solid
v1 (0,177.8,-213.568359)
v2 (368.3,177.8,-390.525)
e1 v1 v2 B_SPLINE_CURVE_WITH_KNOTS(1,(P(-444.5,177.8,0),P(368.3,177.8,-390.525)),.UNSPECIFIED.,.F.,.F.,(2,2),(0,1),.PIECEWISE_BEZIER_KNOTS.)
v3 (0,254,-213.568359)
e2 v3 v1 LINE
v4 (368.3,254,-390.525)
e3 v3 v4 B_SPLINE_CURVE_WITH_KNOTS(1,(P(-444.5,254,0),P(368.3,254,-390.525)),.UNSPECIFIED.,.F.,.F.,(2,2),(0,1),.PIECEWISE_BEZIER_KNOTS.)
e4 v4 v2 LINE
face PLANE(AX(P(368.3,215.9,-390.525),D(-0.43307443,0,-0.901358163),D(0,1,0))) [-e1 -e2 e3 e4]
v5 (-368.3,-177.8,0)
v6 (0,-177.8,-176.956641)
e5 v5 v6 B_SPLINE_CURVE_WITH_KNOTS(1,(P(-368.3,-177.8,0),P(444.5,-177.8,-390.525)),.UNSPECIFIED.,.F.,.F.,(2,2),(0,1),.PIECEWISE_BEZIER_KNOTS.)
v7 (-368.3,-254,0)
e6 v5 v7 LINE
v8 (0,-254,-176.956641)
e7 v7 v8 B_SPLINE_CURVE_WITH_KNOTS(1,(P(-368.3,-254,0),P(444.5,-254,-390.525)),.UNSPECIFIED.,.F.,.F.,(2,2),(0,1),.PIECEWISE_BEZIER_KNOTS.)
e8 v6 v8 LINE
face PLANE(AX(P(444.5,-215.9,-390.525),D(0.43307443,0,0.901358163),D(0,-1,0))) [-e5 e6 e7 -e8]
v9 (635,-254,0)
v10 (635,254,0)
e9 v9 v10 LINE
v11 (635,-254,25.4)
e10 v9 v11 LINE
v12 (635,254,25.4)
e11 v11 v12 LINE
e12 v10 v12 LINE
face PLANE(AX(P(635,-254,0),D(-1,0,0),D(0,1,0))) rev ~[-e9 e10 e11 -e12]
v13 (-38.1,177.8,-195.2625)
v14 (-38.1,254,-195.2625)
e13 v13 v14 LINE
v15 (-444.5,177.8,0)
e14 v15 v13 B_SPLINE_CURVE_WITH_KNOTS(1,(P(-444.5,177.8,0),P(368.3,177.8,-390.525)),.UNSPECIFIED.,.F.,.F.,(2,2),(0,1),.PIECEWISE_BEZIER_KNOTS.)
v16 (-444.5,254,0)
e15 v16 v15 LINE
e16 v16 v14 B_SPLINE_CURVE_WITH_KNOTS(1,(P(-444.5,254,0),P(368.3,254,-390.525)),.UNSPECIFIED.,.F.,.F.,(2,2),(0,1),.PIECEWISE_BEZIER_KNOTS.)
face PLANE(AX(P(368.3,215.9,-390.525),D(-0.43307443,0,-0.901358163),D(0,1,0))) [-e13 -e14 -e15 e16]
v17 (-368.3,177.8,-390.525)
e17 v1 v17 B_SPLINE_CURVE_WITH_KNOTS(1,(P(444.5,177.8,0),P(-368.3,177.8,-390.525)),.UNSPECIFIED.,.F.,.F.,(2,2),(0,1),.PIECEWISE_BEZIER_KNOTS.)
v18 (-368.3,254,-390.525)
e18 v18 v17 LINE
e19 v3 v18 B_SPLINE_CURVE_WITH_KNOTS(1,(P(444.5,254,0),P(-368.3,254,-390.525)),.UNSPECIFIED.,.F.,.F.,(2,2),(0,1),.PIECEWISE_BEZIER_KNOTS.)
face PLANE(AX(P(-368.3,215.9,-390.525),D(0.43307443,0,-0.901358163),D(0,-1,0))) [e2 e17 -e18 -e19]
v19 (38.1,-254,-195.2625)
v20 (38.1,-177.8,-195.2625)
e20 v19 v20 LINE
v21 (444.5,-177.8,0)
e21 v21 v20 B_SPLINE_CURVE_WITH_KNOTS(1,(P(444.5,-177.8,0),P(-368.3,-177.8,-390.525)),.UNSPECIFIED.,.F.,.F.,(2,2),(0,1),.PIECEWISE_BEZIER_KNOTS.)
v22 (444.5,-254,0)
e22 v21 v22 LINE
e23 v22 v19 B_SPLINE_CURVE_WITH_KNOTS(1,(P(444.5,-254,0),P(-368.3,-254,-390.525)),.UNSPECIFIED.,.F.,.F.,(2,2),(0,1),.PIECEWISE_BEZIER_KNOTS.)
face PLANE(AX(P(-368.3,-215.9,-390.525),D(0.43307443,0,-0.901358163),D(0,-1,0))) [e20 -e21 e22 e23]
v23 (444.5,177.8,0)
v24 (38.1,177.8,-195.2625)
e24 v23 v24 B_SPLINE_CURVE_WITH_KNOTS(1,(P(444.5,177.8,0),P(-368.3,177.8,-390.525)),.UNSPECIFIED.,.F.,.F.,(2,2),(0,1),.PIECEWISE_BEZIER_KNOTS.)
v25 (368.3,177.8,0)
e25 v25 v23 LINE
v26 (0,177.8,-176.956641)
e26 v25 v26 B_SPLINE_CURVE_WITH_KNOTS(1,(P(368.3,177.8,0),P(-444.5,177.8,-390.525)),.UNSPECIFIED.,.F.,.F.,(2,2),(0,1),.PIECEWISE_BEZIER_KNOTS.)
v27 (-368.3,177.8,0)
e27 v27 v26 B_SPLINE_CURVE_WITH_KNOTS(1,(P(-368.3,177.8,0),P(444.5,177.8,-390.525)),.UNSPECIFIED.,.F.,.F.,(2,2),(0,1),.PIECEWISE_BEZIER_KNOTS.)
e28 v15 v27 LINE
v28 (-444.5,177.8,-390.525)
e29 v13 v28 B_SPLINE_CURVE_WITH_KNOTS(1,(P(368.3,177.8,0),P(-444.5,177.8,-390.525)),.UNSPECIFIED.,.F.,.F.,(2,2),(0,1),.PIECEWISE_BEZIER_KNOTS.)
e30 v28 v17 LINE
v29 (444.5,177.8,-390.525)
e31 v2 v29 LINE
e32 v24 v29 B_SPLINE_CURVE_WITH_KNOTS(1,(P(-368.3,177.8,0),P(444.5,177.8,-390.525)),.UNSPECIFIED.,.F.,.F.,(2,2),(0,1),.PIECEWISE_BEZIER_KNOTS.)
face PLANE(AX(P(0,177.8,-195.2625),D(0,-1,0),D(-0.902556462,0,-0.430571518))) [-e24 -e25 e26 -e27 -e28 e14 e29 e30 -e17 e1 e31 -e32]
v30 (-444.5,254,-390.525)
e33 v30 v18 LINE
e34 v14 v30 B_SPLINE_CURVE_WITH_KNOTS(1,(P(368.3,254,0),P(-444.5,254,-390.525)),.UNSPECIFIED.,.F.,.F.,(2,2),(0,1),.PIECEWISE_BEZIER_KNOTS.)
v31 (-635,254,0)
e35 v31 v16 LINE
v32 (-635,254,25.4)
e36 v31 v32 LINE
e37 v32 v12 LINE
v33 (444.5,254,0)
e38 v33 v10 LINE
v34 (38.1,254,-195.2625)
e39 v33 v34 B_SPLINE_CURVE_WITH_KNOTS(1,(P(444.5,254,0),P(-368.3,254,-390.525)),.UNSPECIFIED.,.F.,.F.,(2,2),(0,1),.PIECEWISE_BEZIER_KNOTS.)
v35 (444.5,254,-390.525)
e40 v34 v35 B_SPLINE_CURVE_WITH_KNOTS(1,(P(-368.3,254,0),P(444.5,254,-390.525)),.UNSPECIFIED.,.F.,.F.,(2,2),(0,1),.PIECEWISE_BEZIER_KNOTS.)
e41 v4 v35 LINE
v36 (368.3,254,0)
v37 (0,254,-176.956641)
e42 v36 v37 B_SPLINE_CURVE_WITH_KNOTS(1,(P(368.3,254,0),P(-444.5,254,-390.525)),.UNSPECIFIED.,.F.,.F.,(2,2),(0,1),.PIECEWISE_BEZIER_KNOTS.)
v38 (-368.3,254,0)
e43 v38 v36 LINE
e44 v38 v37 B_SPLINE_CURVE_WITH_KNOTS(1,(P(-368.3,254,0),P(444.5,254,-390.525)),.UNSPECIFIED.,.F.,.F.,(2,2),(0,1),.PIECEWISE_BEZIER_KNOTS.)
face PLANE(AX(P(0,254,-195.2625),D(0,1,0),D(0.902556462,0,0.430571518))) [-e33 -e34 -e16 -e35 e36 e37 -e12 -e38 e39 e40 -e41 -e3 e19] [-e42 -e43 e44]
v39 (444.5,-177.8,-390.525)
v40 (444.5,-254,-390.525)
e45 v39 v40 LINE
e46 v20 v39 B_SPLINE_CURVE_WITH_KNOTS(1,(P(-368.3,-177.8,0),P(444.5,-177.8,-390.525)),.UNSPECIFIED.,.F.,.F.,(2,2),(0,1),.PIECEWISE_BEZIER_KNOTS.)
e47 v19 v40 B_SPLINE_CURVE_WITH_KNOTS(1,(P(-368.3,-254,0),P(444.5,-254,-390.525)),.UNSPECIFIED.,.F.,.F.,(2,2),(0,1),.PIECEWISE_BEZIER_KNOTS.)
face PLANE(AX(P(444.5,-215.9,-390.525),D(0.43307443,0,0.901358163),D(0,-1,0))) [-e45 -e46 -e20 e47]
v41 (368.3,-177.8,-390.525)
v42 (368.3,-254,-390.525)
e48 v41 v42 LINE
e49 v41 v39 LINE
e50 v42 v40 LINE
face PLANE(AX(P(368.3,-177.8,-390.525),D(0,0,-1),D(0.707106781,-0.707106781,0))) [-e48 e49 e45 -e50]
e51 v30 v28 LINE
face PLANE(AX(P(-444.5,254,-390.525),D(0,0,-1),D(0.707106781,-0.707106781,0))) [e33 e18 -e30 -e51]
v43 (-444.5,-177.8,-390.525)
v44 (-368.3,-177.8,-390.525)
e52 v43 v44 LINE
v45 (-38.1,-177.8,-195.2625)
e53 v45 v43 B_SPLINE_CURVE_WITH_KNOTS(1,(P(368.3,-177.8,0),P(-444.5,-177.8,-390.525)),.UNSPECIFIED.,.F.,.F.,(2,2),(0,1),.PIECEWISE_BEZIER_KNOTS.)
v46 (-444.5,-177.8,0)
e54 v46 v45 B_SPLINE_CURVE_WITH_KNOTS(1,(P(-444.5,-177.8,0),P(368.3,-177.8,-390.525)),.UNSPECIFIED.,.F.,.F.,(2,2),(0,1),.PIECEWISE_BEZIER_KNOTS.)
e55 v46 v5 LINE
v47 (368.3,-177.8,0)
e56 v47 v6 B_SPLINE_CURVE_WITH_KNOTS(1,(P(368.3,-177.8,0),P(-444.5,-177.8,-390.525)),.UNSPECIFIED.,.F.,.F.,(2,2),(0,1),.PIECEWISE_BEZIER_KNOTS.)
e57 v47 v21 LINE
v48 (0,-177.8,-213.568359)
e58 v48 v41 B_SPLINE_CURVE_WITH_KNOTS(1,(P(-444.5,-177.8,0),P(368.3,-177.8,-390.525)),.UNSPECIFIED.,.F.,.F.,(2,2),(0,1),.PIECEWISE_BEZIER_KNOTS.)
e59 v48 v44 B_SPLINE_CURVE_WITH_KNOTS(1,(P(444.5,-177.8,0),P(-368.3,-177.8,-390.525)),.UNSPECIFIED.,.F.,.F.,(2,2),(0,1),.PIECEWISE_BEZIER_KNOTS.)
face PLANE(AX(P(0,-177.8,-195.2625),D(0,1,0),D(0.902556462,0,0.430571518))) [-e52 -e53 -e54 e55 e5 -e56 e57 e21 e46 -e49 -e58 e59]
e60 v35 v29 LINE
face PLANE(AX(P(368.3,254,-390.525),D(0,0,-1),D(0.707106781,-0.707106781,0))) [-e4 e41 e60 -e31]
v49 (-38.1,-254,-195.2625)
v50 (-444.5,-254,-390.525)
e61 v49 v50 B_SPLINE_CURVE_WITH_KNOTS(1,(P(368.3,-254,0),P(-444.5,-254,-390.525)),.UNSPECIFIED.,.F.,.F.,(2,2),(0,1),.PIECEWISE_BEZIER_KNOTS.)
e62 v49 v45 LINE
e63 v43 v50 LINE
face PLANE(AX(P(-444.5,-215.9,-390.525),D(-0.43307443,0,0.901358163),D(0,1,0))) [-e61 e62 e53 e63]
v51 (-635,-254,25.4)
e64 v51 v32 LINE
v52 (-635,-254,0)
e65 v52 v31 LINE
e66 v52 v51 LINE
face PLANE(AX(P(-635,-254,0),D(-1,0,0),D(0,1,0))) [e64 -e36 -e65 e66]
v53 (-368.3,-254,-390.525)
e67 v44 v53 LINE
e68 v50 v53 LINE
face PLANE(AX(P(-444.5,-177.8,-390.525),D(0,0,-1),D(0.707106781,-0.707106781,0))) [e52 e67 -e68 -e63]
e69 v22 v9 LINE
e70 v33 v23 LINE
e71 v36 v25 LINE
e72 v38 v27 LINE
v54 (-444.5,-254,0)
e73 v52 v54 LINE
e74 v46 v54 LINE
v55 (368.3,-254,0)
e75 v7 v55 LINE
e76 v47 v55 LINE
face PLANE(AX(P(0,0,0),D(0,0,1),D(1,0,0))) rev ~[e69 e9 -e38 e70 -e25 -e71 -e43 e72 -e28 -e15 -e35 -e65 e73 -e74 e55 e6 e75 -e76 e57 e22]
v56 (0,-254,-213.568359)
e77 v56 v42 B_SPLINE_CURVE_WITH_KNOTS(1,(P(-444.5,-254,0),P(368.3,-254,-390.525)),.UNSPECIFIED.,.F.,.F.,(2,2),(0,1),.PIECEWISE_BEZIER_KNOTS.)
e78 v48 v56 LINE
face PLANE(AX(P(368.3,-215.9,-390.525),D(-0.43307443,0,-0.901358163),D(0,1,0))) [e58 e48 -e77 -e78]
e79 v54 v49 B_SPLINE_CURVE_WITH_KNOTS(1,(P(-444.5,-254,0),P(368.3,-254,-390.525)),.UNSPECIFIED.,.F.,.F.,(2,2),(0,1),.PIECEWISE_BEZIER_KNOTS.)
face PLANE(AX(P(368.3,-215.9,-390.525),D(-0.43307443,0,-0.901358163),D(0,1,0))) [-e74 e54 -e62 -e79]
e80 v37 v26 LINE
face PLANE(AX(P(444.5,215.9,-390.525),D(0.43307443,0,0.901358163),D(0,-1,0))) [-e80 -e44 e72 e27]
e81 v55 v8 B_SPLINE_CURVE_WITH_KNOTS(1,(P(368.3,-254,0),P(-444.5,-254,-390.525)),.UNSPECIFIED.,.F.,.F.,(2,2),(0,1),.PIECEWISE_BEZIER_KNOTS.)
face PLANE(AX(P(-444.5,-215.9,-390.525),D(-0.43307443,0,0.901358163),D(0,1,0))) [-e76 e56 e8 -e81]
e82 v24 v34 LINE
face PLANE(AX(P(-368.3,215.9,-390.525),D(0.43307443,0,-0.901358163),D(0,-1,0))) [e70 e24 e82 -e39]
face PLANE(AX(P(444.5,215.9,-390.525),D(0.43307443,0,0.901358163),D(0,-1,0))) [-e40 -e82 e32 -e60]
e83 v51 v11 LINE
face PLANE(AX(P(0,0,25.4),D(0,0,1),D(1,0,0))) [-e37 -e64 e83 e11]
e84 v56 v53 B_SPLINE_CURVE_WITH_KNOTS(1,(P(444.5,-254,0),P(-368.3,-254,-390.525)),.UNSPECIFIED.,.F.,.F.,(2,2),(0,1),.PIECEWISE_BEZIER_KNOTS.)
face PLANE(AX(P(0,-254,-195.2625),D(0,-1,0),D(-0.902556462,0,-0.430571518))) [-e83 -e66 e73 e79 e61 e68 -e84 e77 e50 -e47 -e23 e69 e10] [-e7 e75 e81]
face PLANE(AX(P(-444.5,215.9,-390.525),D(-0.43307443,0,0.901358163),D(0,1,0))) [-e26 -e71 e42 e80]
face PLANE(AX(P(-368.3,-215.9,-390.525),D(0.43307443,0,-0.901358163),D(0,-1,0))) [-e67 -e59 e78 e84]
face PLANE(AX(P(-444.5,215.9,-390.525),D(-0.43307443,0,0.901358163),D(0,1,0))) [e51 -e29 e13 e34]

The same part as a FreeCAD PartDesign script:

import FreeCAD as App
import Part
import Sketcher

V = App.Vector
Q = App.Units.Quantity

doc = App.newDocument("Part")
body = doc.addObject("PartDesign::Body", "Body")

sketch1 = body.newObject("Sketcher::SketchObject", "Sketch")
sketch1.AttachmentSupport = (doc.getObject("XY_Plane"), [""])
sketch1.MapMode = "FlatFace"
sketch1.addGeometry(Part.LineSegment(V(-635, 254, 0), V(-635, -254, 0)), False)
sketch1.addGeometry(Part.LineSegment(V(-635, -254, 0), V(635, -254, 0)), False)
sketch1.addGeometry(Part.LineSegment(V(635, -254, 0), V(635, 254, 0)), False)
sketch1.addGeometry(Part.LineSegment(V(635, 254, 0), V(-635, 254, 0)), False)
sketch1.addConstraint(Sketcher.Constraint("Coincident", 0, 2, 1, 1))
sketch1.addConstraint(Sketcher.Constraint("Coincident", 1, 2, 2, 1))
sketch1.addConstraint(Sketcher.Constraint("Coincident", 2, 2, 3, 1))
sketch1.addConstraint(Sketcher.Constraint("Coincident", 3, 2, 0, 1))
sketch1.addConstraint(Sketcher.Constraint("Vertical", 0))
sketch1.addConstraint(Sketcher.Constraint("Horizontal", 1))
sketch1.addConstraint(Sketcher.Constraint("Vertical", 2))
sketch1.addConstraint(Sketcher.Constraint("Horizontal", 3))
sketch1.addConstraint(Sketcher.Constraint("Symmetric", 0, 2, 2, 2, -1, 1))
sketch1.addConstraint(Sketcher.Constraint("DistanceX", 1, 1, 1, 2, Q("50 in")))
sketch1.addConstraint(Sketcher.Constraint("DistanceY", 0, 2, 0, 1, Q("20 in")))
pad1 = body.newObject("PartDesign::Pad", "Pad")
pad1.Profile = sketch1
pad1.Length = Q("1 in")

sketch2 = body.newObject("Sketcher::SketchObject", "Sketch001")
sketch2.AttachmentSupport = (doc.getObject("XY_Plane"), [""])
sketch2.MapMode = "FlatFace"
sketch2.addGeometry(Part.LineSegment(V(-444, -254, 0), V(-444, -178, 0)), False)
sketch2.addGeometry(Part.LineSegment(V(-444, -178, 0), V(-368, -178, 0)), False)
sketch2.addGeometry(Part.LineSegment(V(-368, -178, 0), V(-368, -254, 0)), False)
sketch2.addGeometry(Part.LineSegment(V(-368, -254, 0), V(-444, -254, 0)), False)
sketch2.addConstraint(Sketcher.Constraint("Coincident", 0, 2, 1, 1))
sketch2.addConstraint(Sketcher.Constraint("Coincident", 1, 2, 2, 1))
sketch2.addConstraint(Sketcher.Constraint("Coincident", 2, 2, 3, 1))
sketch2.addConstraint(Sketcher.Constraint("Coincident", 3, 2, 0, 1))
sketch2.addConstraint(Sketcher.Constraint("Vertical", 0))
sketch2.addConstraint(Sketcher.Constraint("Horizontal", 1))
sketch2.addConstraint(Sketcher.Constraint("Vertical", 2))
sketch2.addConstraint(Sketcher.Constraint("Horizontal", 3))
sketch2.addConstraint(Sketcher.Constraint("Equal", 3, 0))
sketch2.addConstraint(Sketcher.Constraint("DistanceX", 1, 1, 1, 2, Q("3 in")))
sketch2.addConstraint(Sketcher.Constraint("DistanceY", 0, 2, -1, 1, Q("7 in")))
sketch2.addConstraint(Sketcher.Constraint("DistanceX", 0, 2, -1, 1, Q("17.5 in")))

sketch3 = body.newObject("Sketcher::SketchObject", "Sketch002")
sketch3.AttachmentSupport = (doc.getObject("XY_Plane"), [""])
sketch3.MapMode = "FlatFace"
sketch3.AttachmentOffset = App.Placement(V(0, 0, -15.375 * 25.4), App.Rotation())
sketch3.addGeometry(Part.LineSegment(V(368, -254, 0), V(368, -178, 0)), False)
sketch3.addGeometry(Part.LineSegment(V(368, -178, 0), V(444, -178, 0)), False)
sketch3.addGeometry(Part.LineSegment(V(444, -178, 0), V(444, -254, 0)), False)
sketch3.addGeometry(Part.LineSegment(V(444, -254, 0), V(368, -254, 0)), False)
sketch3.addConstraint(Sketcher.Constraint("Coincident", 0, 2, 1, 1))
sketch3.addConstraint(Sketcher.Constraint("Coincident", 1, 2, 2, 1))
sketch3.addConstraint(Sketcher.Constraint("Coincident", 2, 2, 3, 1))
sketch3.addConstraint(Sketcher.Constraint("Coincident", 3, 2, 0, 1))
sketch3.addConstraint(Sketcher.Constraint("Vertical", 0))
sketch3.addConstraint(Sketcher.Constraint("Horizontal", 1))
sketch3.addConstraint(Sketcher.Constraint("Vertical", 2))
sketch3.addConstraint(Sketcher.Constraint("Horizontal", 3))
sketch3.addConstraint(Sketcher.Constraint("Equal", 3, 0))
sketch3.addConstraint(Sketcher.Constraint("DistanceX", 1, 1, 1, 2, Q("3 in")))
sketch3.addConstraint(Sketcher.Constraint("DistanceY", 0, 2, -1, 1, Q("7 in")))
sketch3.addConstraint(Sketcher.Constraint("DistanceX", -1, 1, 0, 2, Q("14.5 in")))

additiveloft = body.newObject("PartDesign::AdditiveLoft", "AdditiveLoft")
additiveloft.Profile = sketch2
additiveloft.Sections = [sketch3]

sketch4 = body.newObject("Sketcher::SketchObject", "Sketch003")
sketch4.AttachmentSupport = (doc.getObject("XY_Plane"), [""])
sketch4.MapMode = "FlatFace"
sketch4.addGeometry(Part.LineSegment(V(-444, 178, 0), V(-444, 254, 0)), False)
sketch4.addGeometry(Part.LineSegment(V(-444, 254, 0), V(-368, 254, 0)), False)
sketch4.addGeometry(Part.LineSegment(V(-368, 254, 0), V(-368, 178, 0)), False)
sketch4.addGeometry(Part.LineSegment(V(-368, 178, 0), V(-444, 178, 0)), False)
sketch4.addConstraint(Sketcher.Constraint("Coincident", 0, 2, 1, 1))
sketch4.addConstraint(Sketcher.Constraint("Coincident", 1, 2, 2, 1))
sketch4.addConstraint(Sketcher.Constraint("Coincident", 2, 2, 3, 1))
sketch4.addConstraint(Sketcher.Constraint("Coincident", 3, 2, 0, 1))
sketch4.addConstraint(Sketcher.Constraint("Vertical", 0))
sketch4.addConstraint(Sketcher.Constraint("Horizontal", 1))
sketch4.addConstraint(Sketcher.Constraint("Vertical", 2))
sketch4.addConstraint(Sketcher.Constraint("Horizontal", 3))
sketch4.addConstraint(Sketcher.Constraint("Equal", 3, 0))
sketch4.addConstraint(Sketcher.Constraint("DistanceX", 1, 1, 1, 2, Q("3 in")))
sketch4.addConstraint(Sketcher.Constraint("DistanceY", -1, 1, 0, 2, Q("10 in")))
sketch4.addConstraint(Sketcher.Constraint("DistanceX", 0, 2, -1, 1, Q("17.5 in")))

sketch5 = body.newObject("Sketcher::SketchObject", "Sketch004")
sketch5.AttachmentSupport = (doc.getObject("XY_Plane"), [""])
sketch5.MapMode = "FlatFace"
sketch5.AttachmentOffset = App.Placement(V(0, 0, -15.375 * 25.4), App.Rotation())
sketch5.addGeometry(Part.LineSegment(V(368, 178, 0), V(368, 254, 0)), False)
sketch5.addGeometry(Part.LineSegment(V(368, 254, 0), V(444, 254, 0)), False)
sketch5.addGeometry(Part.LineSegment(V(444, 254, 0), V(444, 178, 0)), False)
sketch5.addGeometry(Part.LineSegment(V(444, 178, 0), V(368, 178, 0)), False)
sketch5.addConstraint(Sketcher.Constraint("Coincident", 0, 2, 1, 1))
sketch5.addConstraint(Sketcher.Constraint("Coincident", 1, 2, 2, 1))
sketch5.addConstraint(Sketcher.Constraint("Coincident", 2, 2, 3, 1))
sketch5.addConstraint(Sketcher.Constraint("Coincident", 3, 2, 0, 1))
sketch5.addConstraint(Sketcher.Constraint("Vertical", 0))
sketch5.addConstraint(Sketcher.Constraint("Horizontal", 1))
sketch5.addConstraint(Sketcher.Constraint("Vertical", 2))
sketch5.addConstraint(Sketcher.Constraint("Horizontal", 3))
sketch5.addConstraint(Sketcher.Constraint("Equal", 3, 0))
sketch5.addConstraint(Sketcher.Constraint("DistanceX", 1, 1, 1, 2, Q("3 in")))
sketch5.addConstraint(Sketcher.Constraint("DistanceY", -1, 1, 0, 2, Q("10 in")))
sketch5.addConstraint(Sketcher.Constraint("DistanceX", -1, 1, 0, 2, Q("14.5 in")))

additiveloft2 = body.newObject("PartDesign::AdditiveLoft", "AdditiveLoft001")
additiveloft2.Profile = sketch4
additiveloft2.Sections = [sketch5]

sketch6 = body.newObject("Sketcher::SketchObject", "Sketch005")
sketch6.AttachmentSupport = (doc.getObject("XY_Plane"), [""])
sketch6.MapMode = "FlatFace"
sketch6.addGeometry(Part.LineSegment(V(368, 178, 0), V(368, 254, 0)), False)
sketch6.addGeometry(Part.LineSegment(V(368, 254, 0), V(444, 254, 0)), False)
sketch6.addGeometry(Part.LineSegment(V(444, 254, 0), V(444, 178, 0)), False)
sketch6.addGeometry(Part.LineSegment(V(444, 178, 0), V(368, 178, 0)), False)
sketch6.addConstraint(Sketcher.Constraint("Coincident", 0, 2, 1, 1))
sketch6.addConstraint(Sketcher.Constraint("Coincident", 1, 2, 2, 1))
sketch6.addConstraint(Sketcher.Constraint("Coincident", 2, 2, 3, 1))
sketch6.addConstraint(Sketcher.Constraint("Coincident", 3, 2, 0, 1))
sketch6.addConstraint(Sketcher.Constraint("Vertical", 0))
sketch6.addConstraint(Sketcher.Constraint("Horizontal", 1))
sketch6.addConstraint(Sketcher.Constraint("Vertical", 2))
sketch6.addConstraint(Sketcher.Constraint("Horizontal", 3))
sketch6.addConstraint(Sketcher.Constraint("Equal", 3, 0))
sketch6.addConstraint(Sketcher.Constraint("DistanceX", 1, 1, 1, 2, Q("3 in")))
sketch6.addConstraint(Sketcher.Constraint("DistanceY", -1, 1, 0, 2, Q("10 in")))
sketch6.addConstraint(Sketcher.Constraint("DistanceX", -1, 1, 0, 2, Q("14.5 in")))

sketch7 = body.newObject("Sketcher::SketchObject", "Sketch006")
sketch7.AttachmentSupport = (doc.getObject("XY_Plane"), [""])
sketch7.MapMode = "FlatFace"
sketch7.AttachmentOffset = App.Placement(V(0, 0, -15.375 * 25.4), App.Rotation())
sketch7.addGeometry(Part.LineSegment(V(-444, 178, 0), V(-444, 254, 0)), False)
sketch7.addGeometry(Part.LineSegment(V(-444, 254, 0), V(-368, 254, 0)), False)
sketch7.addGeometry(Part.LineSegment(V(-368, 254, 0), V(-368, 178, 0)), False)
sketch7.addGeometry(Part.LineSegment(V(-368, 178, 0), V(-444, 178, 0)), False)
sketch7.addConstraint(Sketcher.Constraint("Coincident", 0, 2, 1, 1))
sketch7.addConstraint(Sketcher.Constraint("Coincident", 1, 2, 2, 1))
sketch7.addConstraint(Sketcher.Constraint("Coincident", 2, 2, 3, 1))
sketch7.addConstraint(Sketcher.Constraint("Coincident", 3, 2, 0, 1))
sketch7.addConstraint(Sketcher.Constraint("Vertical", 0))
sketch7.addConstraint(Sketcher.Constraint("Horizontal", 1))
sketch7.addConstraint(Sketcher.Constraint("Vertical", 2))
sketch7.addConstraint(Sketcher.Constraint("Horizontal", 3))
sketch7.addConstraint(Sketcher.Constraint("Equal", 3, 0))
sketch7.addConstraint(Sketcher.Constraint("DistanceX", 1, 1, 1, 2, Q("3 in")))
sketch7.addConstraint(Sketcher.Constraint("DistanceY", -1, 1, 0, 2, Q("10 in")))
sketch7.addConstraint(Sketcher.Constraint("DistanceX", 0, 2, -1, 1, Q("17.5 in")))

additiveloft3 = body.newObject("PartDesign::AdditiveLoft", "AdditiveLoft002")
additiveloft3.Profile = sketch6
additiveloft3.Sections = [sketch7]

sketch8 = body.newObject("Sketcher::SketchObject", "Sketch007")
sketch8.AttachmentSupport = (doc.getObject("XY_Plane"), [""])
sketch8.MapMode = "FlatFace"
sketch8.addGeometry(Part.LineSegment(V(368, -254, 0), V(368, -178, 0)), False)
sketch8.addGeometry(Part.LineSegment(V(368, -178, 0), V(444, -178, 0)), False)
sketch8.addGeometry(Part.LineSegment(V(444, -178, 0), V(444, -254, 0)), False)
sketch8.addGeometry(Part.LineSegment(V(444, -254, 0), V(368, -254, 0)), False)
sketch8.addConstraint(Sketcher.Constraint("Coincident", 0, 2, 1, 1))
sketch8.addConstraint(Sketcher.Constraint("Coincident", 1, 2, 2, 1))
sketch8.addConstraint(Sketcher.Constraint("Coincident", 2, 2, 3, 1))
sketch8.addConstraint(Sketcher.Constraint("Coincident", 3, 2, 0, 1))
sketch8.addConstraint(Sketcher.Constraint("Vertical", 0))
sketch8.addConstraint(Sketcher.Constraint("Horizontal", 1))
sketch8.addConstraint(Sketcher.Constraint("Vertical", 2))
sketch8.addConstraint(Sketcher.Constraint("Horizontal", 3))
sketch8.addConstraint(Sketcher.Constraint("Equal", 3, 0))
sketch8.addConstraint(Sketcher.Constraint("DistanceX", 1, 1, 1, 2, Q("3 in")))
sketch8.addConstraint(Sketcher.Constraint("DistanceY", 0, 2, -1, 1, Q("7 in")))
sketch8.addConstraint(Sketcher.Constraint("DistanceX", -1, 1, 0, 2, Q("14.5 in")))

sketch9 = body.newObject("Sketcher::SketchObject", "Sketch008")
sketch9.AttachmentSupport = (doc.getObject("XY_Plane"), [""])
sketch9.MapMode = "FlatFace"
sketch9.AttachmentOffset = App.Placement(V(0, 0, -15.375 * 25.4), App.Rotation())
sketch9.addGeometry(Part.LineSegment(V(-444, -254, 0), V(-444, -178, 0)), False)
sketch9.addGeometry(Part.LineSegment(V(-444, -178, 0), V(-368, -178, 0)), False)
sketch9.addGeometry(Part.LineSegment(V(-368, -178, 0), V(-368, -254, 0)), False)
sketch9.addGeometry(Part.LineSegment(V(-368, -254, 0), V(-444, -254, 0)), False)
sketch9.addConstraint(Sketcher.Constraint("Coincident", 0, 2, 1, 1))
sketch9.addConstraint(Sketcher.Constraint("Coincident", 1, 2, 2, 1))
sketch9.addConstraint(Sketcher.Constraint("Coincident", 2, 2, 3, 1))
sketch9.addConstraint(Sketcher.Constraint("Coincident", 3, 2, 0, 1))
sketch9.addConstraint(Sketcher.Constraint("Vertical", 0))
sketch9.addConstraint(Sketcher.Constraint("Horizontal", 1))
sketch9.addConstraint(Sketcher.Constraint("Vertical", 2))
sketch9.addConstraint(Sketcher.Constraint("Horizontal", 3))
sketch9.addConstraint(Sketcher.Constraint("Equal", 3, 0))
sketch9.addConstraint(Sketcher.Constraint("DistanceX", 1, 1, 1, 2, Q("3 in")))
sketch9.addConstraint(Sketcher.Constraint("DistanceY", 0, 2, -1, 1, Q("7 in")))
sketch9.addConstraint(Sketcher.Constraint("DistanceX", 0, 2, -1, 1, Q("17.5 in")))

additiveloft4 = body.newObject("PartDesign::AdditiveLoft", "AdditiveLoft003")
additiveloft4.Profile = sketch8
additiveloft4.Sections = [sketch9]

doc.recompute()
